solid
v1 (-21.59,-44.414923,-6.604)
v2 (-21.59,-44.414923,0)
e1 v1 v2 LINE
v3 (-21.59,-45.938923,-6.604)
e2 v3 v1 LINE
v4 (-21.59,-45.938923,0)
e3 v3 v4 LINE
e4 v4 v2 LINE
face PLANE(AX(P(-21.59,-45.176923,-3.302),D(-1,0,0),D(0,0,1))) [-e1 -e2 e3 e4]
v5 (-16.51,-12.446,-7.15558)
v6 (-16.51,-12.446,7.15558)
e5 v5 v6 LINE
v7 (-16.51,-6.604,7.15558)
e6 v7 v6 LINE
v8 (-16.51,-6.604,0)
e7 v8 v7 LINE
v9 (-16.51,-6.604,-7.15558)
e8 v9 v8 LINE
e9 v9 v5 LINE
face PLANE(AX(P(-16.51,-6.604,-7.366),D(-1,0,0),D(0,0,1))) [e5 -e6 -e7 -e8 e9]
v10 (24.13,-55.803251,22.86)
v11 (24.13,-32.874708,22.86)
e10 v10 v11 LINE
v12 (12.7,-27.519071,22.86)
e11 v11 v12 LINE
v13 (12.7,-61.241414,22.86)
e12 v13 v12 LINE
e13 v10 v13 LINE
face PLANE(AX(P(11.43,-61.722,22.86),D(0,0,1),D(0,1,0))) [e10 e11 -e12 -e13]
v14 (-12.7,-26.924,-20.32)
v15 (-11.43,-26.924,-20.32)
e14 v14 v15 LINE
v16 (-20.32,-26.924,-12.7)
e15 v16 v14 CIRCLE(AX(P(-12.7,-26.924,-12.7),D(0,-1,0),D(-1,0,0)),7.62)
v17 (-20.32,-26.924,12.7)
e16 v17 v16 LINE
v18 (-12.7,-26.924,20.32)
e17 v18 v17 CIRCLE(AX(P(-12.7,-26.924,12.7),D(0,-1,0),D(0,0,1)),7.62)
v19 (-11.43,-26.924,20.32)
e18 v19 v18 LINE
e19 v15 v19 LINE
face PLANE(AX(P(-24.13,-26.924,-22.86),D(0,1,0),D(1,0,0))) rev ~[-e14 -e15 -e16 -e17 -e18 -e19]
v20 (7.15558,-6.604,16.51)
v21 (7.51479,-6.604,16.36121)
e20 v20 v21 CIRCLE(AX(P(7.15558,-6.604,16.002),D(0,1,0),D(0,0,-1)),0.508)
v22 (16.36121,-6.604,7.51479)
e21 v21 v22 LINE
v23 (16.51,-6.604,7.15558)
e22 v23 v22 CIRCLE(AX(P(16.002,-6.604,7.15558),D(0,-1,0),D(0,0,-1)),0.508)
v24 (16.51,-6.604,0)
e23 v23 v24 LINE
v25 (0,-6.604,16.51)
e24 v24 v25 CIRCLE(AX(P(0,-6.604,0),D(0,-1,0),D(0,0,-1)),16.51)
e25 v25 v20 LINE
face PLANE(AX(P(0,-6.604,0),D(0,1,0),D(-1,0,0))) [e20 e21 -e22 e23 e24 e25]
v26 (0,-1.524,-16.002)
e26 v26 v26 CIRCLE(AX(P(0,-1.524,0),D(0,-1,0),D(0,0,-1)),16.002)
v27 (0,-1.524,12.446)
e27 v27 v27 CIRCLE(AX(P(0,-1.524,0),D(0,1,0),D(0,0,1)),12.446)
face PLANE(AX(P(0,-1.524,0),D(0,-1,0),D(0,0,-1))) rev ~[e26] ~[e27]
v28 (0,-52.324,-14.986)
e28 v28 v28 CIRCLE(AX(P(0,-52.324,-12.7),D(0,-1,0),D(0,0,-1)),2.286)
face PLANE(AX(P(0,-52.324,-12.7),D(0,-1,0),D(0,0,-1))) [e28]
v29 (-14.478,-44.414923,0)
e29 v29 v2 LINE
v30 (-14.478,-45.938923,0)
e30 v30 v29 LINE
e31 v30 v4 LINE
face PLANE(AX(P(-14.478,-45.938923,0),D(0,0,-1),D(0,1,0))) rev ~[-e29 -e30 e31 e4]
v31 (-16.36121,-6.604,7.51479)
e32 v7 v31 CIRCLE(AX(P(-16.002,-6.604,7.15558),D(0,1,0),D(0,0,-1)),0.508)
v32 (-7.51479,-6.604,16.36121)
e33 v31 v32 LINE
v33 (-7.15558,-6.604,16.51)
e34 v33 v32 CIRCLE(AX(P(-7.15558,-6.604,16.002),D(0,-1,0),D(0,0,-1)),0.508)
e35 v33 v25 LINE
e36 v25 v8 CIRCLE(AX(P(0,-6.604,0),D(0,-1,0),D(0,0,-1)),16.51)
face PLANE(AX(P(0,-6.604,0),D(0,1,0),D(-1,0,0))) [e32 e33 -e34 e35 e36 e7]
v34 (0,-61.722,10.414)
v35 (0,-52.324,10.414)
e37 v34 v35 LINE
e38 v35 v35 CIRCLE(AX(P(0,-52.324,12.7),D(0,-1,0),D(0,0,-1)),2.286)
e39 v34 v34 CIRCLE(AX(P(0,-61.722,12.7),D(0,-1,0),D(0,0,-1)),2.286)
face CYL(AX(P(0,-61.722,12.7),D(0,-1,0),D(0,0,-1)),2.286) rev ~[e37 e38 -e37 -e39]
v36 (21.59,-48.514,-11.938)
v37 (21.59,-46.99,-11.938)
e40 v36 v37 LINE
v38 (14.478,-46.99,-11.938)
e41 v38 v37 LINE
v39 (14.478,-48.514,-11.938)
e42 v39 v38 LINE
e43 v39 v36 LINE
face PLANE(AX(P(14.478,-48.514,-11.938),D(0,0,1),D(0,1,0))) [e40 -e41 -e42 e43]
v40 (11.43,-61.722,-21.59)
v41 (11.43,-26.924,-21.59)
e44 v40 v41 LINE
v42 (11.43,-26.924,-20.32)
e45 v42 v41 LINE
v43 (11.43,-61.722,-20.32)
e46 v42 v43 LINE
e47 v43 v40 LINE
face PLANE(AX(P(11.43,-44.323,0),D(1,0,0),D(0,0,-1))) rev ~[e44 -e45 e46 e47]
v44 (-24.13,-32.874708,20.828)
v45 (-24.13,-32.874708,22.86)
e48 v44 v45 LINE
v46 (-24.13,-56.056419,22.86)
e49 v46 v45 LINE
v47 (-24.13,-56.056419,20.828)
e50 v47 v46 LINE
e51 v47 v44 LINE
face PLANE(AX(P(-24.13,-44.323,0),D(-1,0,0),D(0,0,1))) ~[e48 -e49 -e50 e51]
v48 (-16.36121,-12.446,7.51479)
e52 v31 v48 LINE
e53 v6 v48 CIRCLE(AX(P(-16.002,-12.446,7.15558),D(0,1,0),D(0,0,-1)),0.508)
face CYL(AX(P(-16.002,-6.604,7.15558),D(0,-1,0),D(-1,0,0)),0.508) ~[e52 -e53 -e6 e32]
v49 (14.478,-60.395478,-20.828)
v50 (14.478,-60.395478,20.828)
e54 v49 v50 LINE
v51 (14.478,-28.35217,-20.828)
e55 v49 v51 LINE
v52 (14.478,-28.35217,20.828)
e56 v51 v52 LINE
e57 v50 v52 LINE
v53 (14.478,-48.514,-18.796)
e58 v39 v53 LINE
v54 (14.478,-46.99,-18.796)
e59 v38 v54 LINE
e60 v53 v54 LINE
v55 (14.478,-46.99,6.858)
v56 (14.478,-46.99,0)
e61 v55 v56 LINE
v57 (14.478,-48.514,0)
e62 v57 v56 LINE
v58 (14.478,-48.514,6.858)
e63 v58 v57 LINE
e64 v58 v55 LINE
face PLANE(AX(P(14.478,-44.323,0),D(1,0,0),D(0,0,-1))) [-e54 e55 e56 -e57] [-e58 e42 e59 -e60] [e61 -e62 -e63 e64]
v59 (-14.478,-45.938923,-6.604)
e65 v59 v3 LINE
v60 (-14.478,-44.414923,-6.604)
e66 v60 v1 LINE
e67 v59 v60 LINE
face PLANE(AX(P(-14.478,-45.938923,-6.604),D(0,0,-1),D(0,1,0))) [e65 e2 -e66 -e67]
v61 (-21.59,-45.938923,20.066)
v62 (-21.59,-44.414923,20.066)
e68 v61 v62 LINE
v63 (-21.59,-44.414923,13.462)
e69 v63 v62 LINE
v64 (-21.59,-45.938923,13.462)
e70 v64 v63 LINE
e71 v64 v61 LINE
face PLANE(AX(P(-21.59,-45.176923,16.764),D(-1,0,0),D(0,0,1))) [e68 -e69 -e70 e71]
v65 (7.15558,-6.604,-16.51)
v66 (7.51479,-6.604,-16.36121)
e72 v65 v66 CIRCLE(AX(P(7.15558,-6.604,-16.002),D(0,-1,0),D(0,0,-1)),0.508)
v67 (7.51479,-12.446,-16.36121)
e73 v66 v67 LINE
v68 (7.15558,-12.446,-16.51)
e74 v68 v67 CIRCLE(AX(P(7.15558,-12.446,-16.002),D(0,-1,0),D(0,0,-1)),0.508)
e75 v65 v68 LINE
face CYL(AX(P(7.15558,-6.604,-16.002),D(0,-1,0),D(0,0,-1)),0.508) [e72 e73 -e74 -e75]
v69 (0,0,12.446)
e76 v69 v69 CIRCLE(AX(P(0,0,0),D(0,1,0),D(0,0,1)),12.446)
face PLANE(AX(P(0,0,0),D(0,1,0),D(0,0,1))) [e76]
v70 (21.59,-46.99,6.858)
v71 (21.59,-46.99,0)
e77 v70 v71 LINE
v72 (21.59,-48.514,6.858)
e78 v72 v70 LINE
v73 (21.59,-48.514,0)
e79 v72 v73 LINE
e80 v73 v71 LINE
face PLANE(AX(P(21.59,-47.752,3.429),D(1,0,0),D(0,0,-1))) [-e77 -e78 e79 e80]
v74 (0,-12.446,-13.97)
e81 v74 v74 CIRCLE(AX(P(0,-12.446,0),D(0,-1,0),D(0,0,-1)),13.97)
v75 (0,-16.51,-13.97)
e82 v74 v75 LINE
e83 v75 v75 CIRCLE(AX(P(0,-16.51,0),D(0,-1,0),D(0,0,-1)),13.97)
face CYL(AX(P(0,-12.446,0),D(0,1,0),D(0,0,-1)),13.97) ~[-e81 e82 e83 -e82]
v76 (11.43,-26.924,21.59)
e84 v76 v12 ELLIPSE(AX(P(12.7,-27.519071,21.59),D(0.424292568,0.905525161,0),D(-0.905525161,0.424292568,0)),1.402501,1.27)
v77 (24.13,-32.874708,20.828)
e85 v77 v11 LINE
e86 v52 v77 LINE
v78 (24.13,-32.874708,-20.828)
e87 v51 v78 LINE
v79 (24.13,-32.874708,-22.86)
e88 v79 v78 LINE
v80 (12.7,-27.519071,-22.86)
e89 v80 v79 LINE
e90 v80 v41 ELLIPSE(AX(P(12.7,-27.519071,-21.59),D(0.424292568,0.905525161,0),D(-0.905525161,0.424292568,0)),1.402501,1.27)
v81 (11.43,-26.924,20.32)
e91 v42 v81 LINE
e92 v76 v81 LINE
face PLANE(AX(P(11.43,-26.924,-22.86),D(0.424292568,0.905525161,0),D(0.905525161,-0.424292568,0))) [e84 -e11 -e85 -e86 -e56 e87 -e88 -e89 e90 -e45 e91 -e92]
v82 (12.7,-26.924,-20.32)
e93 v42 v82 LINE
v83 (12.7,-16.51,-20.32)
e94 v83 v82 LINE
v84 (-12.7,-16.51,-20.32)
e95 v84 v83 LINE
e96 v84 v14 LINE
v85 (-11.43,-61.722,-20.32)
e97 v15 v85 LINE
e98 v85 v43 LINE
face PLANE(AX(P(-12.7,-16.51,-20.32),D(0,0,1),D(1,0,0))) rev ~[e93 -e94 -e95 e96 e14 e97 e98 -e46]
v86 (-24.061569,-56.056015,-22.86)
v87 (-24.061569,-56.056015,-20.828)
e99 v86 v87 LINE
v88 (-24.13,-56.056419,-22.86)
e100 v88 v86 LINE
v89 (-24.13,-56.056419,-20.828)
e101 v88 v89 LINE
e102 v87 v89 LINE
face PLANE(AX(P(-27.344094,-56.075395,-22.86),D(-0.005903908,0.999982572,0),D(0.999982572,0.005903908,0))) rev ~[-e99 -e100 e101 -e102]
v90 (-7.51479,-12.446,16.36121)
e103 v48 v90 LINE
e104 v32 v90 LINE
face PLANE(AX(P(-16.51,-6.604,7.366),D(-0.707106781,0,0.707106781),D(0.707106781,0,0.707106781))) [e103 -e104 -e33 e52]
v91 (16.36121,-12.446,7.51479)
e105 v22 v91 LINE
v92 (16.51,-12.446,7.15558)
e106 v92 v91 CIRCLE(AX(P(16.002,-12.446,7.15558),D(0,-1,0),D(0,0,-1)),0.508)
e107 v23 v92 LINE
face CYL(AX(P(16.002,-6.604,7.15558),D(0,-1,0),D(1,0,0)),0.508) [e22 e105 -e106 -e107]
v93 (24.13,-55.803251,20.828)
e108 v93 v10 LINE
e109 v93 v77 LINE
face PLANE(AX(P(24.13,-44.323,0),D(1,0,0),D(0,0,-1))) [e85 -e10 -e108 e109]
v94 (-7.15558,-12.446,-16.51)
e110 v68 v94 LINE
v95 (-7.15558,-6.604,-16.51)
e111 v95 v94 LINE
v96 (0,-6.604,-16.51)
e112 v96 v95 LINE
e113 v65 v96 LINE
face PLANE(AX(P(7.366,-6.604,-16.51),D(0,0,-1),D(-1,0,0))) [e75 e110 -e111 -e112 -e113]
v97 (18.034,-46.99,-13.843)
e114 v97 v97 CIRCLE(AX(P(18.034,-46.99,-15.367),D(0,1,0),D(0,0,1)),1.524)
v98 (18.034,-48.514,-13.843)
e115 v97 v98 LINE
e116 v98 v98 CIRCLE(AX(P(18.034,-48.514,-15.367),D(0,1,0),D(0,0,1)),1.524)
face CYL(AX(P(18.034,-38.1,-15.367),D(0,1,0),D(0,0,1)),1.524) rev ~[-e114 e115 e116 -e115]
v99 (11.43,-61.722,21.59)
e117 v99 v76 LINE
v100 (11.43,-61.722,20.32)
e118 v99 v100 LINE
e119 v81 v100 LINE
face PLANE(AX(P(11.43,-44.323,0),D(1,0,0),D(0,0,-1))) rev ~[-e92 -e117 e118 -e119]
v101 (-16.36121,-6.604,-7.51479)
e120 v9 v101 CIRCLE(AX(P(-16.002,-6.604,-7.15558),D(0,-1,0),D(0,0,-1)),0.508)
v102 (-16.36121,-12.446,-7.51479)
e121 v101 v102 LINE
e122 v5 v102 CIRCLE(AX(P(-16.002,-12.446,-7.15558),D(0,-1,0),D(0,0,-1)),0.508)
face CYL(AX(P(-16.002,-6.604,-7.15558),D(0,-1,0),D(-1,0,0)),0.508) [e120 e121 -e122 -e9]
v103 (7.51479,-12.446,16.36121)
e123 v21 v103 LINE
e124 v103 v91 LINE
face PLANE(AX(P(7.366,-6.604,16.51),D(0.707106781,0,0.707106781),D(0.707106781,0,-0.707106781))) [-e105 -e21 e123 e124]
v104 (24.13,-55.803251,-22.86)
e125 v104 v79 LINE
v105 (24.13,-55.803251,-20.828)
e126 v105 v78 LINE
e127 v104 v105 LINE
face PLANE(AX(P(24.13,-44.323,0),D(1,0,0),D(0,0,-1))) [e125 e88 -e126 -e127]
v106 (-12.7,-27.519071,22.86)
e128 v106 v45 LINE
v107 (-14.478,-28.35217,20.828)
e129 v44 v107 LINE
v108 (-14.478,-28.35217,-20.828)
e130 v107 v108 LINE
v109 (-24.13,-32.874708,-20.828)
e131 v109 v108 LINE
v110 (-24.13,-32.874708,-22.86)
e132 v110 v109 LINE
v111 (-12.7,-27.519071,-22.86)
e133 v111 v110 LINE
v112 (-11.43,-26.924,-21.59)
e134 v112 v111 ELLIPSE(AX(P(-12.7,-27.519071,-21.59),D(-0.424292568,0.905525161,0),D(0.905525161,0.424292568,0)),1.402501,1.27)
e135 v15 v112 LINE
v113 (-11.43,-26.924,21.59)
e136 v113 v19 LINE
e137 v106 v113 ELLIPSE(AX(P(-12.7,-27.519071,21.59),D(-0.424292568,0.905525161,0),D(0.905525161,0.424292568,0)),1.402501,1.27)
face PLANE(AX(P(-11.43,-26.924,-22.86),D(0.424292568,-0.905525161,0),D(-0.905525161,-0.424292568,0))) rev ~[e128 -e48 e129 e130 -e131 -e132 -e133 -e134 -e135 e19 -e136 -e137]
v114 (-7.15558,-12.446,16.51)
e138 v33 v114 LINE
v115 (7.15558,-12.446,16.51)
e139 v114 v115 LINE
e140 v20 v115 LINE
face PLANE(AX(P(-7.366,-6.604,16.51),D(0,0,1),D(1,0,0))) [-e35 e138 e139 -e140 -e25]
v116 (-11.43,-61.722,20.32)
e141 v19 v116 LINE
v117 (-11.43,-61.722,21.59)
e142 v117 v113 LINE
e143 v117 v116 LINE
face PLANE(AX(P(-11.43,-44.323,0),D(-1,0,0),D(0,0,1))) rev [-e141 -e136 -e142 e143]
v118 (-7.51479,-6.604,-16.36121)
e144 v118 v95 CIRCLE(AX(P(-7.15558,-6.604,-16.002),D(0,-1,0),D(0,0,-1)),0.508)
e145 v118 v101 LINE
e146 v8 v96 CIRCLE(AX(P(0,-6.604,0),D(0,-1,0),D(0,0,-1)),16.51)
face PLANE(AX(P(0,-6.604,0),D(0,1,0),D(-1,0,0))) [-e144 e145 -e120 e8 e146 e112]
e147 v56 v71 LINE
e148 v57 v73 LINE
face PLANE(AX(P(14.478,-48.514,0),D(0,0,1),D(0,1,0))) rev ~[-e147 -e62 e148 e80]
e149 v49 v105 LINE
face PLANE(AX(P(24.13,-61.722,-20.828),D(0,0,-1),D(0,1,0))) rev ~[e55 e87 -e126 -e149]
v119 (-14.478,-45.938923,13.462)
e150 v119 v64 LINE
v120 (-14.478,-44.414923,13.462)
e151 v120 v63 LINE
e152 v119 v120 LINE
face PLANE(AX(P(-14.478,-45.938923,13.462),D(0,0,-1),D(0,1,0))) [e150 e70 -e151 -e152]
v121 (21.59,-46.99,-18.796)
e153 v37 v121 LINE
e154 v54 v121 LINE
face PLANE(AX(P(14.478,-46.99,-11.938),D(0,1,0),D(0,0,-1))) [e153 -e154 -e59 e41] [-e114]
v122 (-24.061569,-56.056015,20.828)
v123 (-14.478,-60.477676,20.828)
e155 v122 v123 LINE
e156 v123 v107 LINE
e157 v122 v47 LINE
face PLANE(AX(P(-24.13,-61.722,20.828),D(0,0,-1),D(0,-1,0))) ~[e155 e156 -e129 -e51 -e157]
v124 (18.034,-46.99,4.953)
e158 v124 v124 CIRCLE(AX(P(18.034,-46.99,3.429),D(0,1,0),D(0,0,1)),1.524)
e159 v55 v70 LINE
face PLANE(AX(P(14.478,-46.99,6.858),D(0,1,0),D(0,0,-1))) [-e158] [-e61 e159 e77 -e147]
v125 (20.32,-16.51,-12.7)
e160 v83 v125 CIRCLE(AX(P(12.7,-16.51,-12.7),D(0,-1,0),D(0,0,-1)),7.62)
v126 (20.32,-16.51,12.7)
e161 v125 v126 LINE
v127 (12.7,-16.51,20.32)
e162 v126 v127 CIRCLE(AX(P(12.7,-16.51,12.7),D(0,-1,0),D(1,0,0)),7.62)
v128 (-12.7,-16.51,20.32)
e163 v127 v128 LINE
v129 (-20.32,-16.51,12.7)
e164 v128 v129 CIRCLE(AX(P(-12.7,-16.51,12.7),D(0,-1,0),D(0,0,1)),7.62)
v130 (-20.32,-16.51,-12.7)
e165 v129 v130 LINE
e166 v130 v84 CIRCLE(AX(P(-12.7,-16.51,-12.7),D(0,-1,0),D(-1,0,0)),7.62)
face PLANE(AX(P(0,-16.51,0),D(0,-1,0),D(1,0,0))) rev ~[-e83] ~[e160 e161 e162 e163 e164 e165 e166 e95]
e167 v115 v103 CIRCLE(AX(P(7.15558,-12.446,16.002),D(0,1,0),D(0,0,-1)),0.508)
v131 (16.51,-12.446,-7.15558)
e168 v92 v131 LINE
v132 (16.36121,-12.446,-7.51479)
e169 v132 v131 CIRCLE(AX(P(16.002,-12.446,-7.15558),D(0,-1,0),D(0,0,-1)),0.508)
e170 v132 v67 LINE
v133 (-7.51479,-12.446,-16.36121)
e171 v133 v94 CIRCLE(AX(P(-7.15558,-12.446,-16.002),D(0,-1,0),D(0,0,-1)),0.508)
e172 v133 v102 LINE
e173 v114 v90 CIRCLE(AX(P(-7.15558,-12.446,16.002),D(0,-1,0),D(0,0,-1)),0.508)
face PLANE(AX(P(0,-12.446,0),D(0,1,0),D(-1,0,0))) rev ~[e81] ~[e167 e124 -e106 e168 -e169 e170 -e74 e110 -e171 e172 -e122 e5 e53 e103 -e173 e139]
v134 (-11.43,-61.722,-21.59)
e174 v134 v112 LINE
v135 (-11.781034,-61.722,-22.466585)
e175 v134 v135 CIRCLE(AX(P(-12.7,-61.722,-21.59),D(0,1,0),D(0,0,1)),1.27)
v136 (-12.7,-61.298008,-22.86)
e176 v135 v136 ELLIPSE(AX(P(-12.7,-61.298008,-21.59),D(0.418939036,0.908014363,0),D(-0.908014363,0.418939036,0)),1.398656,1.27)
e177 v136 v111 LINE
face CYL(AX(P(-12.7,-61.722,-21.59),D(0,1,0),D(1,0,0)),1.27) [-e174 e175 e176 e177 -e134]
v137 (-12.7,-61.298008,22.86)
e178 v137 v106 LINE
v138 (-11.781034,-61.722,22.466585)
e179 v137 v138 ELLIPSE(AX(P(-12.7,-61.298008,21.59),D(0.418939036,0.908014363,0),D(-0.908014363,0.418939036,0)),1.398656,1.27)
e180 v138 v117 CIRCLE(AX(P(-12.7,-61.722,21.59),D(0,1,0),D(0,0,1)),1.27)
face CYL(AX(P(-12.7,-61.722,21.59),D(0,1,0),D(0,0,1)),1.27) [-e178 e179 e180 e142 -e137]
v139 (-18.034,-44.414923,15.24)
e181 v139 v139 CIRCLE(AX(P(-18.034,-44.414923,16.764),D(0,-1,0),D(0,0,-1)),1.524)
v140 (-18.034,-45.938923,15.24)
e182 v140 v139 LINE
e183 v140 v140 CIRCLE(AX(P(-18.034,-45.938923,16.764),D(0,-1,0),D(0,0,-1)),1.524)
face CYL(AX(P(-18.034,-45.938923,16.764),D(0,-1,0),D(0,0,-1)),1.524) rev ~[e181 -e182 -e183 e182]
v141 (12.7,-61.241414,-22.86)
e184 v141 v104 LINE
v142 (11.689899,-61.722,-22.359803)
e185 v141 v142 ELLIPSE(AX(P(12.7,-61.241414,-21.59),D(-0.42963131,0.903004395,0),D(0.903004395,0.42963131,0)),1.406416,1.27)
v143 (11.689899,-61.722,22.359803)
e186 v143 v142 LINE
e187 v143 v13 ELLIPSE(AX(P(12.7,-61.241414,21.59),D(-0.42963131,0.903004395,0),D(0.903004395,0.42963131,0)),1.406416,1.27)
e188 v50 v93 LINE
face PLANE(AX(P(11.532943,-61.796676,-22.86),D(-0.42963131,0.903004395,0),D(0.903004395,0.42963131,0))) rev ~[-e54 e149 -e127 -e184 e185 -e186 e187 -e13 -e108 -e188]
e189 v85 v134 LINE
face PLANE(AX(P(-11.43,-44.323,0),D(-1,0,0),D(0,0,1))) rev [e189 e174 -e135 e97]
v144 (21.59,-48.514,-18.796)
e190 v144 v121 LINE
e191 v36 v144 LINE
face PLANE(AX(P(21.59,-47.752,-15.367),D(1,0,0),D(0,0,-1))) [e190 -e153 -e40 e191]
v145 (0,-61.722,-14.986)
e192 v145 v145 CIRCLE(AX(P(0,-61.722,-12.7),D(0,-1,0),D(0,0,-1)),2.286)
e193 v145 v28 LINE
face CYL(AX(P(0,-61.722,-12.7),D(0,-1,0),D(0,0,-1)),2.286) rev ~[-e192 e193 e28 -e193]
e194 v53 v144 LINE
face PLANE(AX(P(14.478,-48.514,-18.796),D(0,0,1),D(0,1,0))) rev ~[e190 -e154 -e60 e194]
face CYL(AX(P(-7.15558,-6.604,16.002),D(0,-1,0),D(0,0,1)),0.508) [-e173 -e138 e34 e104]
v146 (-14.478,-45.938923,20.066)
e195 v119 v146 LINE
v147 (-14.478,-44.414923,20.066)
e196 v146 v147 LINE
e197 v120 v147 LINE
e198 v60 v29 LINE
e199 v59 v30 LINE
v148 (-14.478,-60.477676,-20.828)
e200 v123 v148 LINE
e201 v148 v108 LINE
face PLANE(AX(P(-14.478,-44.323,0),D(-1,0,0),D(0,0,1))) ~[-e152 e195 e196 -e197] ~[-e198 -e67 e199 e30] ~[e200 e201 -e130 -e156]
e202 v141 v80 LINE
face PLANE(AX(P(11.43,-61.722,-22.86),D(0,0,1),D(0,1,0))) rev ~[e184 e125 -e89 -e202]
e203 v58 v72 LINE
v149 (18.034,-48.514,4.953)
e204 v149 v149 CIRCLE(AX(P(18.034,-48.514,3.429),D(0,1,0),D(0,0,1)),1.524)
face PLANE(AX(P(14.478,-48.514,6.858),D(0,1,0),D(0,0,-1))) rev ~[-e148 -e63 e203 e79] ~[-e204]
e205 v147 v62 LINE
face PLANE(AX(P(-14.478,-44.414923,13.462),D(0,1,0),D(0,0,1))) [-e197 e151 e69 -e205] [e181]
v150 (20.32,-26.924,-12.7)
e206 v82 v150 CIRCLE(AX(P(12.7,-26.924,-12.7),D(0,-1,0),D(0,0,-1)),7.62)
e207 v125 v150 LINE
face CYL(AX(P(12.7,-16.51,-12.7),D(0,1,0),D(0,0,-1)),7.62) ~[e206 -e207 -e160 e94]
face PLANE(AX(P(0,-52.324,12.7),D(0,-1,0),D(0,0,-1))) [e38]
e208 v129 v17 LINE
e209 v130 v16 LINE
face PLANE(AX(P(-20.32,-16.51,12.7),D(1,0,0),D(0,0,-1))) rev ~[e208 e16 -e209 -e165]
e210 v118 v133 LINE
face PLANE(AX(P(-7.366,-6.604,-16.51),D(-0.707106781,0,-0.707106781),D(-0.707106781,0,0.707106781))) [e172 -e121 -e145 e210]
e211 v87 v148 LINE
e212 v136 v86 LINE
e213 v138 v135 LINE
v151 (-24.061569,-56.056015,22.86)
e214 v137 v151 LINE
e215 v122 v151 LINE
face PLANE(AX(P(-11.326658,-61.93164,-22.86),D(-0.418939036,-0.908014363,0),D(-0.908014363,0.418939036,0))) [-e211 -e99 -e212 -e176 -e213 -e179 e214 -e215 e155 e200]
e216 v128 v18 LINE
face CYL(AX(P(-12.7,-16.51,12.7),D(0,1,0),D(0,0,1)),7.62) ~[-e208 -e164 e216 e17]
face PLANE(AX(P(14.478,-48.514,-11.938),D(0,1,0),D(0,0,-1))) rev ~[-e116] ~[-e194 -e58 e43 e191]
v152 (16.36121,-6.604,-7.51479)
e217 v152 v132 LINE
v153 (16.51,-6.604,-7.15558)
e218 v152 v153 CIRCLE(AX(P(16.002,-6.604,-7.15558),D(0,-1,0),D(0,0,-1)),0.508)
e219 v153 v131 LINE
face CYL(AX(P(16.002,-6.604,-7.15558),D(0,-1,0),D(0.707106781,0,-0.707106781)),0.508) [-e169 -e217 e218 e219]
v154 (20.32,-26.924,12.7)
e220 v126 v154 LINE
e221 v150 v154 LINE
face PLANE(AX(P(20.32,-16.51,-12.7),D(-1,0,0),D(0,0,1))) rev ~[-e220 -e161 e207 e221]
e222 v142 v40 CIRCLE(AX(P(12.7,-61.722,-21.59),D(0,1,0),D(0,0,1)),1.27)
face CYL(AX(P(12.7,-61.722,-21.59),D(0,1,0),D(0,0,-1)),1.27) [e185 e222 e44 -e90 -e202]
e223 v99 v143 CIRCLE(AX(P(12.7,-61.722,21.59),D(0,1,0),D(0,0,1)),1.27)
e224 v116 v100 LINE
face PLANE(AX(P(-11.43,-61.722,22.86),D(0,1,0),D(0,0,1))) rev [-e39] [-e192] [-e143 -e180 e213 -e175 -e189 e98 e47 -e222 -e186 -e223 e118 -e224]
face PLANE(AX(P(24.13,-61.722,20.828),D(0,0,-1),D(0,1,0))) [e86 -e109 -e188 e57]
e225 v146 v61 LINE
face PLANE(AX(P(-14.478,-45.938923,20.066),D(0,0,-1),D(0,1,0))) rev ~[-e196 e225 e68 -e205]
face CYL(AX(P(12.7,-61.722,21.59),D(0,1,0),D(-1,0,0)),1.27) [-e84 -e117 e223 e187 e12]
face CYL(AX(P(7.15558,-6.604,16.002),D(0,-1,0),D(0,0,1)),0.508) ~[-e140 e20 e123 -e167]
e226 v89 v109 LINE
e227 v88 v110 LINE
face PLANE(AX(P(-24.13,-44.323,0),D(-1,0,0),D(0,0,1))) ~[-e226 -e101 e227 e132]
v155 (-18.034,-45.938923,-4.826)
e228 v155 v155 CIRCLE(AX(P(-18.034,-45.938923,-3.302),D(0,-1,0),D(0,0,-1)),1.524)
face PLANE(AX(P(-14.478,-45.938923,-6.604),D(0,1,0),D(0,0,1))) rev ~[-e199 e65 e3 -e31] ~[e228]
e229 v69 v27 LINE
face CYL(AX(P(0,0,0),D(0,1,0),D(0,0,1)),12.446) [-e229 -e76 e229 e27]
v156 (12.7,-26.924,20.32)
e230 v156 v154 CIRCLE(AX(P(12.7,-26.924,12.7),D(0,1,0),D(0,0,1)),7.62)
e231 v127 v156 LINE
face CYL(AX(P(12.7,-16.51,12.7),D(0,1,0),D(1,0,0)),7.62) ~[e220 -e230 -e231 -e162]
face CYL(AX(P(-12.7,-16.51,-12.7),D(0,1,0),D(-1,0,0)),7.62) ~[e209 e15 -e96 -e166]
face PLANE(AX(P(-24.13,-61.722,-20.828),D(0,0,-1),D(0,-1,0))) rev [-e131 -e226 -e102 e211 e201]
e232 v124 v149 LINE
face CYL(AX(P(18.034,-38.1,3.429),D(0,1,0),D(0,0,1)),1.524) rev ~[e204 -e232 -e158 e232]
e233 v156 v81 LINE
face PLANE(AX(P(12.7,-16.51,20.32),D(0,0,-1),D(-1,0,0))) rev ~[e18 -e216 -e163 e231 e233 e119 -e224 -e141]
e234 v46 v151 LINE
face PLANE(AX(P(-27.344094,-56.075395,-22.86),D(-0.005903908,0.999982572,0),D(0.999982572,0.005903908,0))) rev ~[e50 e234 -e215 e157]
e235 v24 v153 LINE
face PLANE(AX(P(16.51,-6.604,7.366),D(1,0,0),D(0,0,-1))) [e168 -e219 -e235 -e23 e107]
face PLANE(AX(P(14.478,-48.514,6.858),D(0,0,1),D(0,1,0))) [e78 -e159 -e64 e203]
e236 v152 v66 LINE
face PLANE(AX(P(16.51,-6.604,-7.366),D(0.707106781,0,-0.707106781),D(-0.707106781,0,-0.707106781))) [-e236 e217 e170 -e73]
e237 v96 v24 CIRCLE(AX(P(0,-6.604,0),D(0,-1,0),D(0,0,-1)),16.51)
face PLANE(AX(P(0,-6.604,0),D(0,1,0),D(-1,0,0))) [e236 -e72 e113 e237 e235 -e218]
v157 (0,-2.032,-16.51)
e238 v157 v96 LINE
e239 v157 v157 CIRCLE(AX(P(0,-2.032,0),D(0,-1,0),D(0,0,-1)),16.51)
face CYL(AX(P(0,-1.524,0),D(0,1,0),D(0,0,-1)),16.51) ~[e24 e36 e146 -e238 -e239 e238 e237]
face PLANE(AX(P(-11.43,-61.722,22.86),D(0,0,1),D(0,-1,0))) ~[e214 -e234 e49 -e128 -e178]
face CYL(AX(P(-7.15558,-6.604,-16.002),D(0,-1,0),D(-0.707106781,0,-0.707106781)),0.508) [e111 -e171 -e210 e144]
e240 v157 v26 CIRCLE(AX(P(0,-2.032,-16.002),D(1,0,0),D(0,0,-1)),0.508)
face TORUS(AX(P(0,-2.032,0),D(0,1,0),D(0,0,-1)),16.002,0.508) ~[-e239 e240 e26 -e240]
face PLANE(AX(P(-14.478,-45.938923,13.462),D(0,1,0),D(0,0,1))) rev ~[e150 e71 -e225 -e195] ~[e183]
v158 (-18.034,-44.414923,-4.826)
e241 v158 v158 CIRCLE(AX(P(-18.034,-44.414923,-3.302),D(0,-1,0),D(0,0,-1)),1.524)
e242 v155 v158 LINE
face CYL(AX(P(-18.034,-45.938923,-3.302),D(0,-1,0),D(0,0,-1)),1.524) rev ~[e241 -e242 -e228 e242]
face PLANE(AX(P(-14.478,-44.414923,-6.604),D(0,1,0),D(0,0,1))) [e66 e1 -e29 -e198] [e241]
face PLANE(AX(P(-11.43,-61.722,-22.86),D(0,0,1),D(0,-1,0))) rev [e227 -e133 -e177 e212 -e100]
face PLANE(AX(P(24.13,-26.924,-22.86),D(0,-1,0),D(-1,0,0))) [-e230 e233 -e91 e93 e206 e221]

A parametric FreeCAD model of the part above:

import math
import FreeCAD as App
import Part
import Sketcher

V = App.Vector
Q = App.Units.Quantity


def edges_at(feature, points):
    """Names of the edges that pass closest to the given points."""
    edges = feature.Shape.Edges
    near = lambda p: min(range(len(edges)), key=lambda i: edges[i].distToShape(Part.Vertex(*p))[0])
    return sorted({f"Edge{near(p) + 1}" for p in points})

doc = App.newDocument("Part")
body = doc.addObject("PartDesign::Body", "Body")

sketch1 = body.newObject("Sketcher::SketchObject", "Sketch")
sketch1.AttachmentSupport = (doc.getObject("XZ_Plane"), [""])
sketch1.MapMode = "FlatFace"
sketch1.addGeometry(Part.Circle(V(0, 0, 0), V(0, 0, 1), 12), False)
sketch1.addConstraint([
    Sketcher.Constraint("Coincident", 0, 3, -1, 1),
    Sketcher.Constraint("Diameter", 0, Q("0.98 in")),
])
pad1 = body.newObject("PartDesign::Pad", "Pad")
pad1.Profile = sketch1
pad1.Length = Q("0.06 in")

sketch2 = body.newObject("Sketcher::SketchObject", "Sketch001")
sketch2.AttachmentSupport = (doc.getObject("XZ_Plane"), [""])
sketch2.MapMode = "FlatFace"
sketch2.AttachmentOffset = App.Placement(V(0, 0, 0.06 * 25.4), App.Rotation())
sketch2.addGeometry(Part.Circle(V(0, 0, 0), V(0, 0, 1), 17), False)
sketch2.addConstraint([
    Sketcher.Constraint("Coincident", 0, 3, -1, 1),
    Sketcher.Constraint("Diameter", 0, Q("1.3 in")),
])
pad2 = body.newObject("PartDesign::Pad", "Pad001")
pad2.Profile = sketch2
pad2.Length = Q("0.2 in")

sketch3 = body.newObject("Sketcher::SketchObject", "Sketch002")
sketch3.AttachmentSupport = (doc.getObject("XZ_Plane"), [""])
sketch3.MapMode = "FlatFace"
sketch3.AttachmentOffset = App.Placement(V(0, 0, 0.26 * 25.4), App.Rotation())
sketch3.addGeometry([
    Part.LineSegment(V(17, -7, 0), V(17, 7, 0)),
    Part.LineSegment(V(17, 7, 0), V(7, 17, 0)),
    Part.LineSegment(V(7, 17, 0), V(-7, 17, 0)),
    Part.LineSegment(V(-7, 17, 0), V(-17, 7, 0)),
    Part.LineSegment(V(-17, 7, 0), V(-17, -7, 0)),
    Part.LineSegment(V(-17, -7, 0), V(-7, -17, 0)),
    Part.LineSegment(V(-7, -17, 0), V(7, -17, 0)),
    Part.LineSegment(V(7, -17, 0), V(17, -7, 0)),
], False)
sketch3.addConstraint([
    Sketcher.Constraint("Coincident", 0, 2, 1, 1),
    Sketcher.Constraint("Coincident", 1, 2, 2, 1),
    Sketcher.Constraint("Coincident", 2, 2, 3, 1),
    Sketcher.Constraint("Coincident", 3, 2, 4, 1),
    Sketcher.Constraint("Coincident", 4, 2, 5, 1),
    Sketcher.Constraint("Coincident", 5, 2, 6, 1),
    Sketcher.Constraint("Coincident", 6, 2, 7, 1),
    Sketcher.Constraint("Coincident", 7, 2, 0, 1),
    Sketcher.Constraint("Vertical", 0),
    Sketcher.Constraint("Horizontal", 2),
    Sketcher.Constraint("Vertical", 4),
    Sketcher.Constraint("Horizontal", 6),
    Sketcher.Constraint("Symmetric", 0, 2, 4, 2, -1, 1),
    Sketcher.Constraint("Symmetric", 1, 2, 5, 2, -1, 1),
    Sketcher.Constraint("Perpendicular", 1, 3),
    Sketcher.Constraint("Perpendicular", 5, 7),
    Sketcher.Constraint("Horizontal", 0, 2, 3, 2),
    Sketcher.Constraint("Horizontal", 4, 2, 7, 2),
    Sketcher.Constraint("Vertical", 2, 2, 5, 2),
    Sketcher.Constraint("Equal", 6, 0),
    Sketcher.Constraint("DistanceX", 2, 2, 2, 1, Q("0.58 in")),
    Sketcher.Constraint("DistanceX", 3, 2, 0, 2, Q("1.3 in")),
])
pad3 = body.newObject("PartDesign::Pad", "Pad002")
pad3.Profile = sketch3
pad3.Length = Q("0.23 in")
doc.recompute()

fillet = body.newObject("PartDesign::Fillet", "Fillet")
fillet.Base = (pad3, edges_at(pad3, [(0, -1.524, 16.51)]))
fillet.Radius = Q("0.02 in")
doc.recompute()

fillet2 = body.newObject("PartDesign::Fillet", "Fillet001")
fillet2.Base = (fillet, edges_at(fillet, [
    (7.366, -9.525, -16.51),
    (16.51, -9.525, -7.366),
    (16.51, -9.525, 7.366),
    (7.366, -9.525, 16.51),
    (-7.366, -9.525, 16.51),
    (-16.51, -9.525, 7.366),
    (-16.51, -9.525, -7.366),
    (-7.366, -9.525, -16.51),
]))
fillet2.Radius = Q("0.02 in")

sketch4 = body.newObject("Sketcher::SketchObject", "Sketch003")
sketch4.AttachmentSupport = (doc.getObject("XZ_Plane"), [""])
sketch4.MapMode = "FlatFace"
sketch4.AttachmentOffset = App.Placement(V(0, 0, 0.49 * 25.4), App.Rotation())
sketch4.addGeometry(Part.Circle(V(0, 0, 0), V(0, 0, 1), 14), False)
sketch4.addConstraint([
    Sketcher.Constraint("Coincident", 0, 3, -1, 1),
    Sketcher.Constraint("Diameter", 0, Q("1.1 in")),
])
pad4 = body.newObject("PartDesign::Pad", "Pad003")
pad4.Profile = sketch4
pad4.Length = Q("0.16 in")

sketch5 = body.newObject("Sketcher::SketchObject", "Sketch004")
sketch5.AttachmentSupport = (doc.getObject("XZ_Plane"), [""])
sketch5.MapMode = "FlatFace"
sketch5.AttachmentOffset = App.Placement(V(0, 0, 0.65 * 25.4), App.Rotation())
sketch5.addGeometry([
    Part.LineSegment(V(13, 20, 0), V(-13, 20, 0)),
    Part.ArcOfCircle(Part.Circle(V(-13, 13, 0), V(0, 0, 1), 8), math.radians(90), math.radians(180)),
    Part.LineSegment(V(-20, 13, 0), V(-20, -13, 0)),
    Part.ArcOfCircle(Part.Circle(V(-13, -13, 0), V(0, 0, 1), 8), math.radians(180), math.radians(270)),
    Part.LineSegment(V(-13, -20, 0), V(13, -20, 0)),
    Part.ArcOfCircle(Part.Circle(V(13, -13, 0), V(0, 0, 1), 8), math.radians(-90), math.radians(0)),
    Part.LineSegment(V(20, -13, 0), V(20, 13, 0)),
    Part.ArcOfCircle(Part.Circle(V(13, 13, 0), V(0, 0, 1), 8), math.radians(0), math.radians(90)),
], False)
sketch5.addConstraint([
    Sketcher.Constraint("Tangent", 0, 2, 1, 1),
    Sketcher.Constraint("Tangent", 1, 2, 2, 1),
    Sketcher.Constraint("Tangent", 2, 2, 3, 1),
    Sketcher.Constraint("Tangent", 3, 2, 4, 1),
    Sketcher.Constraint("Tangent", 4, 2, 5, 1),
    Sketcher.Constraint("Tangent", 5, 2, 6, 1),
    Sketcher.Constraint("Tangent", 6, 2, 7, 1),
    Sketcher.Constraint("Tangent", 7, 2, 0, 1),
    Sketcher.Constraint("Horizontal", 0),
    Sketcher.Constraint("Vertical", 2),
    Sketcher.Constraint("Horizontal", 4),
    Sketcher.Constraint("Vertical", 6),
    Sketcher.Constraint("Equal", 1, 3),
    Sketcher.Constraint("Equal", 3, 5),
    Sketcher.Constraint("Equal", 5, 7),
    Sketcher.Constraint("Symmetric", 1, 3, 5, 3, -1, 1),
    Sketcher.Constraint("Equal", 4, 2),
    Sketcher.Constraint("Radius", 1, Q("0.3 in")),
    Sketcher.Constraint("DistanceX", 0, 2, 0, 1, Q("1 in")),
])
pad5 = body.newObject("PartDesign::Pad", "Pad004")
pad5.Profile = sketch5
pad5.Length = Q("0.41 in")

sketch6 = body.newObject("Sketcher::SketchObject", "Sketch005")
sketch6.AttachmentSupport = (doc.getObject("XZ_Plane"), [""])
sketch6.MapMode = "FlatFace"
sketch6.AttachmentOffset = App.Placement(V(0, 0, 1.06 * 25.4), App.Rotation())
sketch6.addGeometry([
    Part.LineSegment(V(-11, 20, 0), V(-11, -20, 0)),
    Part.LineSegment(V(-11, -20, 0), V(11, -20, 0)),
    Part.LineSegment(V(11, -20, 0), V(11, 20, 0)),
    Part.LineSegment(V(11, 20, 0), V(-11, 20, 0)),
], False)
sketch6.addConstraint([
    Sketcher.Constraint("Coincident", 0, 2, 1, 1),
    Sketcher.Constraint("Coincident", 1, 2, 2, 1),
    Sketcher.Constraint("Coincident", 2, 2, 3, 1),
    Sketcher.Constraint("Coincident", 3, 2, 0, 1),
    Sketcher.Constraint("Vertical", 0),
    Sketcher.Constraint("Horizontal", 1),
    Sketcher.Constraint("Vertical", 2),
    Sketcher.Constraint("Horizontal", 3),
    Sketcher.Constraint("Symmetric", 0, 2, 2, 2, -1, 1),
    Sketcher.Constraint("DistanceX", 1, 1, 1, 2, Q("0.9 in")),
    Sketcher.Constraint("DistanceY", 0, 2, 0, 1, Q("1.6 in")),
])
pad6 = body.newObject("PartDesign::Pad", "Pad005")
pad6.Profile = sketch6
pad6.Length = Q("1.37 in")

sketch7 = body.newObject("Sketcher::SketchObject", "Sketch006")
sketch7.AttachmentSupport = (doc.getObject("XZ_Plane"), [""])
sketch7.MapMode = "FlatFace"
sketch7.AttachmentOffset = App.Placement(V(0, 0, 2.43 * 25.4), App.Rotation())
sketch7.addGeometry([
    Part.Circle(V(0, -12.7, 0), V(0, 0, 1), 2.3),
    Part.Circle(V(0, 12.7, 0), V(0, 0, 1), 2.3),
], False)
sketch7.addConstraint([
    Sketcher.Constraint("Equal", 0, 1),
    Sketcher.Constraint("Symmetric", 0, 3, 1, 3, -1, 1),
    Sketcher.Constraint("PointOnObject", 0, 3, -2),
    Sketcher.Constraint("Diameter", 0, Q("0.18 in")),
    Sketcher.Constraint("DistanceY", 0, 3, 1, 3, Q("1 in")),
])
pocket1 = body.newObject("PartDesign::Pocket", "Pocket")
pocket1.Profile = sketch7
pocket1.Length = Q("0.37 in")

sketch8 = body.newObject("Sketcher::SketchObject", "Sketch007")
sketch8.AttachmentSupport = (doc.getObject("YZ_Plane"), [""])
sketch8.MapMode = "FlatFace"
sketch8.AttachmentOffset = App.Placement(V(0, 0, 0.45 * 25.4), App.Rotation())
sketch8.addGeometry([
    Part.LineSegment(V(-27, 23, 0), V(-62, 23, 0)),
    Part.LineSegment(V(-62, 23, 0), V(-62, -23, 0)),
    Part.LineSegment(V(-62, -23, 0), V(-27, -23, 0)),
    Part.LineSegment(V(-27, -23, 0), V(-27, 23, 0)),
], False)
sketch8.addConstraint([
    Sketcher.Constraint("Coincident", 0, 2, 1, 1),
    Sketcher.Constraint("Coincident", 1, 2, 2, 1),
    Sketcher.Constraint("Coincident", 2, 2, 3, 1),
    Sketcher.Constraint("Coincident", 3, 2, 0, 1),
    Sketcher.Constraint("Horizontal", 0),
    Sketcher.Constraint("Vertical", 1),
    Sketcher.Constraint("Horizontal", 2),
    Sketcher.Constraint("Vertical", 3),
    Sketcher.Constraint("DistanceY", 1, 2, 1, 1, Q("1.8 in")),
    Sketcher.Constraint("DistanceX", 0, 2, 0, 1, Q("1.37 in")),
    Sketcher.Constraint("DistanceY", -1, 1, 0, 2, Q("0.9 in")),
    Sketcher.Constraint("DistanceX", 0, 2, -1, 1, Q("2.43 in")),
])
pad7 = body.newObject("PartDesign::Pad", "Pad006")
pad7.Profile = sketch8
pad7.Length = Q("0.5 in")
doc.recompute()

mirrored = body.newObject("PartDesign::Mirrored", "Mirrored")
mirrored.Originals = [pad7]
mirrored.MirrorPlane = (doc.getObject("YZ_Plane"), [""])
body.Tip = mirrored

sketch9 = body.newObject("Sketcher::SketchObject", "Sketch008")
sketch9.AttachmentSupport = (doc.getObject("YZ_Plane"), [""])
sketch9.MapMode = "FlatFace"
sketch9.AttachmentOffset = App.Placement(V(0, 0, 0.95 * 25.4), App.Rotation())
sketch9.addGeometry([
    Part.LineSegment(V(-27, 21, 0), V(-62, 21, 0)),
    Part.LineSegment(V(-62, 21, 0), V(-62, -21, 0)),
    Part.LineSegment(V(-62, -21, 0), V(-27, -21, 0)),
    Part.LineSegment(V(-27, -21, 0), V(-27, 21, 0)),
], False)
sketch9.addConstraint([
    Sketcher.Constraint("Coincident", 0, 2, 1, 1),
    Sketcher.Constraint("Coincident", 1, 2, 2, 1),
    Sketcher.Constraint("Coincident", 2, 2, 3, 1),
    Sketcher.Constraint("Coincident", 3, 2, 0, 1),
    Sketcher.Constraint("Horizontal", 0),
    Sketcher.Constraint("Vertical", 1),
    Sketcher.Constraint("Horizontal", 2),
    Sketcher.Constraint("Vertical", 3),
    Sketcher.Constraint("DistanceX", 0, 2, 0, 1, Q("1.37 in")),
    Sketcher.Constraint("DistanceY", 1, 2, 1, 1, Q("1.64 in")),
    Sketcher.Constraint("DistanceX", 0, 2, -1, 1, Q("2.43 in")),
    Sketcher.Constraint("DistanceY", -1, 1, 0, 2, Q("0.82 in")),
])
pocket2 = body.newObject("PartDesign::Pocket", "Pocket001")
pocket2.Profile = sketch9
pocket2.Length = Q("0.38 in")
doc.recompute()

mirrored2 = body.newObject("PartDesign::Mirrored", "Mirrored001")
mirrored2.Originals = [pocket2]
mirrored2.MirrorPlane = (doc.getObject("YZ_Plane"), [""])
body.Tip = mirrored2

sketch10 = body.newObject("Sketcher::SketchObject", "Sketch009")
sketch10.AttachmentSupport = (doc.getObject("XY_Plane"), [""])
sketch10.MapMode = "FlatFace"
sketch10.AttachmentOffset = App.Placement(V(0, 0, -0.9 * 25.4), App.Rotation())
sketch10.addGeometry([
    Part.LineSegment(V(24, -33, 0), V(11, -27, 0)),
    Part.LineSegment(V(11, -27, 0), V(24, -27, 0)),
    Part.LineSegment(V(24, -27, 0), V(24, -33, 0)),
    Part.LineSegment(V(-24, -33, 0), V(-24, -27, 0)),
    Part.LineSegment(V(-24, -27, 0), V(-11, -27, 0)),
    Part.LineSegment(V(-11, -27, 0), V(-24, -33, 0)),
    Part.LineSegment(V(-24, -56, 0), V(-11, -62, 0)),
    Part.LineSegment(V(-11, -62, 0), V(-24, -62, 0)),
    Part.LineSegment(V(-24, -62, 0), V(-24, -56, 0)),
    Part.LineSegment(V(24, -56, 0), V(24, -62, 0)),
    Part.LineSegment(V(24, -62, 0), V(12, -62, 0)),
    Part.LineSegment(V(12, -62, 0), V(24, -56, 0)),
], False)
sketch10.addConstraint([
    Sketcher.Constraint("Coincident", 0, 2, 1, 1),
    Sketcher.Constraint("Coincident", 1, 2, 2, 1),
    Sketcher.Constraint("Coincident", 2, 2, 0, 1),
    Sketcher.Constraint("Coincident", 3, 2, 4, 1),
    Sketcher.Constraint("Coincident", 4, 2, 5, 1),
    Sketcher.Constraint("Coincident", 5, 2, 3, 1),
    Sketcher.Constraint("Coincident", 6, 2, 7, 1),
    Sketcher.Constraint("Coincident", 7, 2, 8, 1),
    Sketcher.Constraint("Coincident", 8, 2, 6, 1),
    Sketcher.Constraint("Coincident", 9, 2, 10, 1),
    Sketcher.Constraint("Coincident", 10, 2, 11, 1),
    Sketcher.Constraint("Coincident", 11, 2, 9, 1),
    Sketcher.Constraint("Horizontal", 1),
    Sketcher.Constraint("Vertical", 2),
    Sketcher.Constraint("Vertical", 3),
    Sketcher.Constraint("Horizontal", 4),
    Sketcher.Constraint("Symmetric", 1, 2, 3, 2, -2),
    Sketcher.Constraint("Perpendicular", 7, 8),
    Sketcher.Constraint("Parallel", 8, 9),
    Sketcher.Constraint("Perpendicular", 9, 10),
    Sketcher.Constraint("Horizontal", 2, 2, 5, 2),
    Sketcher.Constraint("Equal", 1, 4),
    Sketcher.Constraint("Equal", 5, 6),
    Sketcher.Constraint("Equal", 8, 9),
    Sketcher.Constraint("Equal", 7, 10),
    Sketcher.Constraint("DistanceX", 1, 1, 1, 2, Q("0.5 in")),
    Sketcher.Constraint("Distance", 7, Q("0.5 in")),
    Sketcher.Constraint("DistanceX", 3, 2, 0, 2, Q("1.4 in")),
    Sketcher.Constraint("DistanceY", 0, 2, -1, 1, Q("1.06 in")),
    Sketcher.Constraint("DistanceX", 6, 2, 10, 2, 22.859602),
    Sketcher.Constraint("Distance", 0, 14.025011),
    Sketcher.Constraint("DistanceX", 6, 2, -1, 1, 11.326658),
    Sketcher.Constraint("DistanceY", 6, 2, -1, 1, 61.93164),
    Sketcher.Constraint("DistanceY", 7, 2, -1, 1, 62.006619),
    Sketcher.Constraint("DistanceY", 9, 2, 2, 2, 28.846989),
])
pocket3 = body.newObject("PartDesign::Pocket", "Pocket002")
pocket3.Profile = sketch10
pocket3.Type = "ThroughAll"
pocket3.Reversed = True

sketch11 = body.newObject("Sketcher::SketchObject", "Sketch010")
sketch11.AttachmentSupport = (doc.getObject("XY_Plane"), [""])
sketch11.MapMode = "FlatFace"
sketch11.AttachmentOffset = App.Placement(V(0, 0, -0.9 * 25.4), App.Rotation())
sketch11.addGeometry([
    Part.LineSegment(V(-27.3, -61.7, 0), V(-27.3, -56.1, 0)),
    Part.LineSegment(V(-27.3, -56.1, 0), V(-24.1, -56.1, 0)),
    Part.LineSegment(V(-24.1, -56.1, 0), V(-20.5, -61.7, 0)),
    Part.LineSegment(V(-20.5, -61.7, 0), V(-27.3, -61.7, 0)),
], False)
sketch11.addConstraint([
    Sketcher.Constraint("Coincident", 0, 2, 1, 1),
    Sketcher.Constraint("Coincident", 1, 2, 2, 1),
    Sketcher.Constraint("Coincident", 2, 2, 3, 1),
    Sketcher.Constraint("Coincident", 3, 2, 0, 1),
    Sketcher.Constraint("Vertical", 0),
    Sketcher.Constraint("Horizontal", 3),
    Sketcher.Constraint("DistanceY", 2, 2, -1, 1, Q("2.43 in")),
    Sketcher.Constraint("DistanceX", 3, 2, 3, 1, 6.797108),
    Sketcher.Constraint("Distance", 1, 3.282582),
    Sketcher.Constraint("Distance", 2, 6.667509),
    Sketcher.Constraint("DistanceY", 0, 1, 0, 2, 5.646605),
    Sketcher.Constraint("DistanceX", 1, 2, -1, 1, 24.061569),
])
pocket4 = body.newObject("PartDesign::Pocket", "Pocket003")
pocket4.Profile = sketch11
pocket4.Type = "ThroughAll"
pocket4.Reversed = True

sketch12 = body.newObject("Sketcher::SketchObject", "Sketch011")
sketch12.AttachmentSupport = (doc.getObject("YZ_Plane"), [""])
sketch12.MapMode = "FlatFace"
sketch12.AttachmentOffset = App.Placement(V(0, 0, 0.57 * 25.4), App.Rotation())
sketch12.addGeometry([
    Part.LineSegment(V(-47, 6.9, 0), V(-48.5, 6.9, 0)),
    Part.LineSegment(V(-48.5, 6.9, 0), V(-48.5, 0, 0)),
    Part.LineSegment(V(-48.5, 0, 0), V(-47, 0, 0)),
    Part.LineSegment(V(-47, 0, 0), V(-47, 6.9, 0)),
    Part.LineSegment(V(-47, -11.9, 0), V(-48.5, -11.9, 0)),
    Part.LineSegment(V(-48.5, -11.9, 0), V(-48.5, -18.8, 0)),
    Part.LineSegment(V(-48.5, -18.8, 0), V(-47, -18.8, 0)),
    Part.LineSegment(V(-47, -18.8, 0), V(-47, -11.9, 0)),
], False)
sketch12.addConstraint([
    Sketcher.Constraint("Coincident", 0, 2, 1, 1),
    Sketcher.Constraint("Coincident", 1, 2, 2, 1),
    Sketcher.Constraint("Coincident", 2, 2, 3, 1),
    Sketcher.Constraint("Coincident", 3, 2, 0, 1),
    Sketcher.Constraint("Coincident", 4, 2, 5, 1),
    Sketcher.Constraint("Coincident", 5, 2, 6, 1),
    Sketcher.Constraint("Coincident", 6, 2, 7, 1),
    Sketcher.Constraint("Coincident", 7, 2, 4, 1),
    Sketcher.Constraint("Horizontal", 0),
    Sketcher.Constraint("Vertical", 1),
    Sketcher.Constraint("Horizontal", 2),
    Sketcher.Constraint("Vertical", 3),
    Sketcher.Constraint("Horizontal", 4),
    Sketcher.Constraint("Vertical", 5),
    Sketcher.Constraint("Horizontal", 6),
    Sketcher.Constraint("Vertical", 7),
    Sketcher.Constraint("PointOnObject", 1, 2, -1),
    Sketcher.Constraint("Vertical", 1, 2, 4, 2),
    Sketcher.Constraint("Vertical", 3, 2, 6, 2),
    Sketcher.Constraint("Equal", 3, 5),
    Sketcher.Constraint("DistanceX", 0, 2, 0, 1, Q("0.06 in")),
    Sketcher.Constraint("DistanceY", 1, 2, 1, 1, Q("0.27 in")),
    Sketcher.Constraint("DistanceX", 0, 2, -1, 1, Q("1.91 in")),
    Sketcher.Constraint("DistanceY", 4, 2, -1, 1, Q("0.47 in")),
])
pad8 = body.newObject("PartDesign::Pad", "Pad007")
pad8.Profile = sketch12
pad8.Length = Q("0.28 in")

sketch13 = body.newObject("Sketcher::SketchObject", "Sketch012")
sketch13.AttachmentSupport = (doc.getObject("YZ_Plane"), [""])
sketch13.MapMode = "FlatFace"
sketch13.AttachmentOffset = App.Placement(V(0, 0, -0.57 * 25.4), App.Rotation())
sketch13.addGeometry([
    Part.LineSegment(V(-44.4, -6.6, 0), V(-45.9, -6.6, 0)),
    Part.LineSegment(V(-45.9, -6.6, 0), V(-45.9, 0, 0)),
    Part.LineSegment(V(-45.9, 0, 0), V(-44.4, 0, 0)),
    Part.LineSegment(V(-44.4, 0, 0), V(-44.4, -6.6, 0)),
    Part.LineSegment(V(-44.4, 13.5, 0), V(-45.9, 13.5, 0)),
    Part.LineSegment(V(-45.9, 13.5, 0), V(-45.9, 20.1, 0)),
    Part.LineSegment(V(-45.9, 20.1, 0), V(-44.4, 20.1, 0)),
    Part.LineSegment(V(-44.4, 20.1, 0), V(-44.4, 13.5, 0)),
], False)
sketch13.addConstraint([
    Sketcher.Constraint("Coincident", 0, 2, 1, 1),
    Sketcher.Constraint("Coincident", 1, 2, 2, 1),
    Sketcher.Constraint("Coincident", 2, 2, 3, 1),
    Sketcher.Constraint("Coincident", 3, 2, 0, 1),
    Sketcher.Constraint("Coincident", 4, 2, 5, 1),
    Sketcher.Constraint("Coincident", 5, 2, 6, 1),
    Sketcher.Constraint("Coincident", 6, 2, 7, 1),
    Sketcher.Constraint("Coincident", 7, 2, 4, 1),
    Sketcher.Constraint("Horizontal", 0),
    Sketcher.Constraint("Vertical", 1),
    Sketcher.Constraint("Horizontal", 2),
    Sketcher.Constraint("Vertical", 3),
    Sketcher.Constraint("Horizontal", 4),
    Sketcher.Constraint("Vertical", 5),
    Sketcher.Constraint("Horizontal", 6),
    Sketcher.Constraint("Vertical", 7),
    Sketcher.Constraint("PointOnObject", 1, 2, -1),
    Sketcher.Constraint("Vertical", 1, 2, 4, 2),
    Sketcher.Constraint("Vertical", 3, 2, 6, 2),
    Sketcher.Constraint("Equal", 3, 5),
    Sketcher.Constraint("DistanceX", 0, 2, 0, 1, Q("0.06 in")),
    Sketcher.Constraint("DistanceY", 1, 1, 1, 2, Q("0.26 in")),
    Sketcher.Constraint("DistanceY", -1, 1, 4, 2, Q("0.53 in")),
    Sketcher.Constraint("DistanceX", 0, 2, -1, 1, 45.938923),
])
pad9 = body.newObject("PartDesign::Pad", "Pad008")
pad9.Profile = sketch13
pad9.Length = Q("0.28 in")
pad9.Reversed = True

sketch14 = body.newObject("Sketcher::SketchObject", "Sketch013")
sketch14.AttachmentSupport = (doc.getObject("XZ_Plane"), [""])
sketch14.MapMode = "FlatFace"
sketch14.AttachmentOffset = App.Placement(V(0, 0, 45.938923), App.Rotation())
sketch14.addGeometry([
    Part.Circle(V(-18, -3.3, 0), V(0, 0, 1), 1.5),
    Part.Circle(V(-18, 16.8, 0), V(0, 0, 1), 1.5),
    Part.Circle(V(18, 3.4, 0), V(0, 0, 1), 1.5),
    Part.Circle(V(18, -15.4, 0), V(0, 0, 1), 1.5),
], False)
sketch14.addConstraint([
    Sketcher.Constraint("Equal", 0, 1),
    Sketcher.Constraint("Equal", 1, 2),
    Sketcher.Constraint("Equal", 2, 3),
    Sketcher.Constraint("Vertical", 0, 3, 1, 3),
    Sketcher.Constraint("Vertical", 2, 3, 3, 3),
    Sketcher.Constraint("Diameter", 0, Q("0.12 in")),
    Sketcher.Constraint("DistanceX", 0, 3, -1, 1, Q("0.71 in")),
    Sketcher.Constraint("DistanceY", 0, 3, -1, 1, Q("0.13 in")),
    Sketcher.Constraint("DistanceY", -1, 1, 1, 3, Q("0.66 in")),
    Sketcher.Constraint("DistanceX", -1, 1, 2, 3, Q("0.71 in")),
    Sketcher.Constraint("DistanceY", 3, 3, 2, 3, Q("0.74 in")),
    Sketcher.Constraint("DistanceY", -1, 1, 2, 3, Q("0.135 in")),
])
pocket5 = body.newObject("PartDesign::Pocket", "Pocket004")
pocket5.Profile = sketch14
pocket5.Length = Q("0.28 in")

sketch15 = body.newObject("Sketcher::SketchObject", "Sketch014")
sketch15.AttachmentSupport = (doc.getObject("XZ_Plane"), [""])
sketch15.MapMode = "FlatFace"
sketch15.AttachmentOffset = App.Placement(V(0, 0, 1.5 * 25.4), App.Rotation())
sketch15.addGeometry([
    Part.Circle(V(18, -15.4, 0), V(0, 0, 1), 1.5),
    Part.Circle(V(18, 3.4, 0), V(0, 0, 1), 1.5),
], False)
sketch15.addConstraint([
    Sketcher.Constraint("Equal", 0, 1),
    Sketcher.Constraint("Vertical", 0, 3, 1, 3),
    Sketcher.Constraint("Diameter", 0, Q("0.12 in")),
    Sketcher.Constraint("DistanceX", -1, 1, 0, 3, Q("0.71 in")),
    Sketcher.Constraint("DistanceY", 0, 3, 1, 3, Q("0.74 in")),
    Sketcher.Constraint("DistanceY", 0, 3, -1, 1, Q("0.605 in")),
])
pocket6 = body.newObject("PartDesign::Pocket", "Pocket005")
pocket6.Profile = sketch15
pocket6.Length = Q("0.5 in")
pocket6.Reversed = True
doc.recompute()

fillet3 = body.newObject("PartDesign::Fillet", "Fillet002")
fillet3.Base = (pocket6, edges_at(pocket6, [
    (-11.43, -44.323, -22.86),
    (11.43, -44.323, -22.86),
    (-11.43, -44.323, 22.86),
    (11.43, -44.323, 22.86),
]))
fillet3.Radius = Q("0.05 in")

doc.recompute()
